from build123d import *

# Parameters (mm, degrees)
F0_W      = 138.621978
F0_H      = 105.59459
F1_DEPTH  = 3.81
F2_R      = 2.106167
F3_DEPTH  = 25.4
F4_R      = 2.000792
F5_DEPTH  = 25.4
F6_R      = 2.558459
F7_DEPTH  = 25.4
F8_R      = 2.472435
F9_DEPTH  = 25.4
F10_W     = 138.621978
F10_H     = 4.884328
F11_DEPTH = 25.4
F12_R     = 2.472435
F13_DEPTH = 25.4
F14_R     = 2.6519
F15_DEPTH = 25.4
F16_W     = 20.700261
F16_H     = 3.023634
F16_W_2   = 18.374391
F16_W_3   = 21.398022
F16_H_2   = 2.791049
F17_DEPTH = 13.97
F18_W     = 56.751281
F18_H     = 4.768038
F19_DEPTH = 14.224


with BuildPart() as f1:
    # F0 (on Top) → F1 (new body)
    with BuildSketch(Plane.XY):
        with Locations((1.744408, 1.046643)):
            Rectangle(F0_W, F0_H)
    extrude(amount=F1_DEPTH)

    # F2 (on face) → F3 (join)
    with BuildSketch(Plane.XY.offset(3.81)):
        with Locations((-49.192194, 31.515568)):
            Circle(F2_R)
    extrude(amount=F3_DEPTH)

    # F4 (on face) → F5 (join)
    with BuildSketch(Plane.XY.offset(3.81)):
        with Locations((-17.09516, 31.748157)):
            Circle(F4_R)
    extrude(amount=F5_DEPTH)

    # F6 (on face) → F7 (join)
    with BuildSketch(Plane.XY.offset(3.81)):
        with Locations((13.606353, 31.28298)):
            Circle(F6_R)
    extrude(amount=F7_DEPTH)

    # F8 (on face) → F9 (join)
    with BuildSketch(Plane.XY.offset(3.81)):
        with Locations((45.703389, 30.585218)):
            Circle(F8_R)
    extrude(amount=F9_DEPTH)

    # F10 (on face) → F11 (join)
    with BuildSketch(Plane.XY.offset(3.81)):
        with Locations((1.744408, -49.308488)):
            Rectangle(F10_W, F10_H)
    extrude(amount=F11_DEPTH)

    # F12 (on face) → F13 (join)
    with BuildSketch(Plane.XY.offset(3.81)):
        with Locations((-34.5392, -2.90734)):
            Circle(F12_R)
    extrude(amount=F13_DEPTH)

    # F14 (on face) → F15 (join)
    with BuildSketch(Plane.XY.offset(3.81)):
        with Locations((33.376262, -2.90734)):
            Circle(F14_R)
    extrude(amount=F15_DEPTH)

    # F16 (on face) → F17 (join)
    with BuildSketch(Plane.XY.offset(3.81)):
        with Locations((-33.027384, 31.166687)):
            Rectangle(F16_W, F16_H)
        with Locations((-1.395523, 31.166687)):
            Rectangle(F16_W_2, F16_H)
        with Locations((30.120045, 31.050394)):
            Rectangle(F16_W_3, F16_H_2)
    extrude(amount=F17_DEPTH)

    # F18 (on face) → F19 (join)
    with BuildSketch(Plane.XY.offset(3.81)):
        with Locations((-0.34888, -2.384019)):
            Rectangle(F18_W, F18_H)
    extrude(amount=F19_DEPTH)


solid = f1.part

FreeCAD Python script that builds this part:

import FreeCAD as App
import Part
import Sketcher

V = App.Vector
Q = App.Units.Quantity

doc = App.newDocument("Part")
body = doc.addObject("PartDesign::Body", "Body")

# Sketch on XY plane
sketch1 = body.newObject("Sketcher::SketchObject", "Sketch")
sketch1.AttachmentSupport = (doc.getObject("XY_Plane"), [""])
sketch1.MapMode = "FlatFace"
sketch1.addGeometry(Part.LineSegment(V(-68, 54, 0), V(-68, -52, 0)), False)
sketch1.addGeometry(Part.LineSegment(V(-68, -52, 0), V(71, -52, 0)), False)
sketch1.addGeometry(Part.LineSegment(V(71, -52, 0), V(71, 54, 0)), False)
sketch1.addGeometry(Part.LineSegment(V(71, 54, 0), V(-68, 54, 0)), False)
sketch1.addConstraint(Sketcher.Constraint("Coincident", 0, 2, 1, 1))
sketch1.addConstraint(Sketcher.Constraint("Coincident", 1, 2, 2, 1))
sketch1.addConstraint(Sketcher.Constraint("Coincident", 2, 2, 3, 1))
sketch1.addConstraint(Sketcher.Constraint("Coincident", 3, 2, 0, 1))
sketch1.addConstraint(Sketcher.Constraint("Vertical", 0))
sketch1.addConstraint(Sketcher.Constraint("Horizontal", 1))
sketch1.addConstraint(Sketcher.Constraint("Vertical", 2))
sketch1.addConstraint(Sketcher.Constraint("Horizontal", 3))
sketch1.addConstraint(Sketcher.Constraint("DistanceX", 1, 1, 1, 2, Q("138.621978 mm")))
sketch1.addConstraint(Sketcher.Constraint("DistanceY", 0, 2, 0, 1, Q("105.59459 mm")))
sketch1.addConstraint(Sketcher.Constraint("DistanceX", 0, 2, -1, 1, Q("67.566581 mm")))
sketch1.addConstraint(Sketcher.Constraint("DistanceY", 0, 2, -1, 1, Q("51.750652 mm")))
pad1 = body.newObject("PartDesign::Pad", "Pad")
pad1.Profile = sketch1
pad1.Length = Q("0.15 in")

# Sketch on XY plane
sketch2 = body.newObject("Sketcher::SketchObject", "Sketch001")
sketch2.AttachmentSupport = (doc.getObject("XY_Plane"), [""])
sketch2.MapMode = "FlatFace"
sketch2.AttachmentOffset = App.Placement(V(0, 0, 0.15 * 25.4), App.Rotation())
sketch2.addGeometry(Part.Circle(V(-49.2, 31.5, 0), V(0, 0, 1), 2.1), False)
sketch2.addConstraint(Sketcher.Constraint("Diameter", 0, Q("4.212334 mm")))
sketch2.addConstraint(Sketcher.Constraint("DistanceX", 0, 3, -1, 1, Q("49.192194 mm")))
sketch2.addConstraint(Sketcher.Constraint("DistanceY", -1, 1, 0, 3, Q("31.515568 mm")))
pad2 = body.newObject("PartDesign::Pad", "Pad001")
pad2.Profile = sketch2
pad2.Length = Q("1 in")

# Sketch on XY plane
sketch3 = body.newObject("Sketcher::SketchObject", "Sketch002")
sketch3.AttachmentSupport = (doc.getObject("XY_Plane"), [""])
sketch3.MapMode = "FlatFace"
sketch3.AttachmentOffset = App.Placement(V(0, 0, 0.15 * 25.4), App.Rotation())
sketch3.addGeometry(Part.Circle(V(-17.1, 31.7, 0), V(0, 0, 1), 2), False)
sketch3.addConstraint(Sketcher.Constraint("Diameter", 0, Q("4.001584 mm")))
sketch3.addConstraint(Sketcher.Constraint("DistanceX", 0, 3, -1, 1, Q("17.09516 mm")))
sketch3.addConstraint(Sketcher.Constraint("DistanceY", -1, 1, 0, 3, Q("31.748157 mm")))
pad3 = body.newObject("PartDesign::Pad", "Pad002")
pad3.Profile = sketch3
pad3.Length = Q("1 in")

# Sketch on XY plane
sketch4 = body.newObject("Sketcher::SketchObject", "Sketch003")
sketch4.AttachmentSupport = (doc.getObject("XY_Plane"), [""])
sketch4.MapMode = "FlatFace"
sketch4.AttachmentOffset = App.Placement(V(0, 0, 0.15 * 25.4), App.Rotation())
sketch4.addGeometry(Part.Circle(V(13.6, 31.3, 0), V(0, 0, 1), 2.6), False)
sketch4.addConstraint(Sketcher.Constraint("Diameter", 0, Q("5.116918 mm")))
sketch4.addConstraint(Sketcher.Constraint("DistanceY", -1, 1, 0, 3, Q("31.28298 mm")))
sketch4.addConstraint(Sketcher.Constraint("DistanceX", -1, 1, 0, 3, Q("13.606353 mm")))
pad4 = body.newObject("PartDesign::Pad", "Pad003")
pad4.Profile = sketch4
pad4.Length = Q("1 in")

# Sketch on XY plane
sketch5 = body.newObject("Sketcher::SketchObject", "Sketch004")
sketch5.AttachmentSupport = (doc.getObject("XY_Plane"), [""])
sketch5.MapMode = "FlatFace"
sketch5.AttachmentOffset = App.Placement(V(0, 0, 0.15 * 25.4), App.Rotation())
sketch5.addGeometry(Part.Circle(V(45.7, 30.6, 0), V(0, 0, 1), 2.5), False)
sketch5.addConstraint(Sketcher.Constraint("Diameter", 0, Q("4.94487 mm")))
sketch5.addConstraint(Sketcher.Constraint("DistanceX", -1, 1, 0, 3, Q("45.703389 mm")))
sketch5.addConstraint(Sketcher.Constraint("DistanceY", -1, 1, 0, 3, Q("30.585218 mm")))
pad5 = body.newObject("PartDesign::Pad", "Pad004")
pad5.Profile = sketch5
pad5.Length = Q("1 in")

# Sketch on XY plane
sketch6 = body.newObject("Sketcher::SketchObject", "Sketch005")
sketch6.AttachmentSupport = (doc.getObject("XY_Plane"), [""])
sketch6.MapMode = "FlatFace"
sketch6.AttachmentOffset = App.Placement(V(0, 0, 0.15 * 25.4), App.Rotation())
sketch6.addGeometry(Part.LineSegment(V(-67.6, -46.9, 0), V(-67.6, -51.8, 0)), False)
sketch6.addGeometry(Part.LineSegment(V(-67.6, -51.8, 0), V(71.1, -51.8, 0)), False)
sketch6.addGeometry(Part.LineSegment(V(71.1, -51.8, 0), V(71.1, -46.9, 0)), False)
sketch6.addGeometry(Part.LineSegment(V(71.1, -46.9, 0), V(-67.6, -46.9, 0)), False)
sketch6.addConstraint(Sketcher.Constraint("Coincident", 0, 2, 1, 1))
sketch6.addConstraint(Sketcher.Constraint("Coincident", 1, 2, 2, 1))
sketch6.addConstraint(Sketcher.Constraint("Coincident", 2, 2, 3, 1))
sketch6.addConstraint(Sketcher.Constraint("Coincident", 3, 2, 0, 1))
sketch6.addConstraint(Sketcher.Constraint("Vertical", 0))
sketch6.addConstraint(Sketcher.Constraint("Horizontal", 1))
sketch6.addConstraint(Sketcher.Constraint("Vertical", 2))
sketch6.addConstraint(Sketcher.Constraint("Horizontal", 3))
sketch6.addConstraint(Sketcher.Constraint("DistanceX", 1, 1, 1, 2, Q("138.621978 mm")))
sketch6.addConstraint(Sketcher.Constraint("DistanceY", 0, 2, 0, 1, Q("4.884328 mm")))
sketch6.addConstraint(Sketcher.Constraint("DistanceX", 0, 2, -1, 1, Q("67.566581 mm")))
sketch6.addConstraint(Sketcher.Constraint("DistanceY", 0, 2, -1, 1, Q("51.750652 mm")))
pad6 = body.newObject("PartDesign::Pad", "Pad005")
pad6.Profile = sketch6
pad6.Length = Q("1 in")

# Sketch on XY plane
sketch7 = body.newObject("Sketcher::SketchObject", "Sketch006")
sketch7.AttachmentSupport = (doc.getObject("XY_Plane"), [""])
sketch7.MapMode = "FlatFace"
sketch7.AttachmentOffset = App.Placement(V(0, 0, 0.15 * 25.4), App.Rotation())
sketch7.addGeometry(Part.Circle(V(-34.5, -2.9, 0), V(0, 0, 1), 2.5), False)
sketch7.addConstraint(Sketcher.Constraint("Diameter", 0, Q("4.94487 mm")))
sketch7.addConstraint(Sketcher.Constraint("DistanceX", 0, 3, -1, 1, Q("34.5392 mm")))
sketch7.addConstraint(Sketcher.Constraint("DistanceY", 0, 3, -1, 1, Q("2.90734 mm")))
pad7 = body.newObject("PartDesign::Pad", "Pad006")
pad7.Profile = sketch7
pad7.Length = Q("1 in")

# Sketch on XY plane
sketch8 = body.newObject("Sketcher::SketchObject", "Sketch007")
sketch8.AttachmentSupport = (doc.getObject("XY_Plane"), [""])
sketch8.MapMode = "FlatFace"
sketch8.AttachmentOffset = App.Placement(V(0, 0, 0.15 * 25.4), App.Rotation())
sketch8.addGeometry(Part.Circle(V(33.4, -2.9, 0), V(0, 0, 1), 2.7), False)
sketch8.addConstraint(Sketcher.Constraint("Diameter", 0, Q("5.3038 mm")))
sketch8.addConstraint(Sketcher.Constraint("DistanceX", -1, 1, 0, 3, Q("33.376262 mm")))
sketch8.addConstraint(Sketcher.Constraint("DistanceY", 0, 3, -1, 1, Q("2.90734 mm")))
pad8 = body.newObject("PartDesign::Pad", "Pad007")
pad8.Profile = sketch8
pad8.Length = Q("1 in")

# Sketch on XY plane
sketch9 = body.newObject("Sketcher::SketchObject", "Sketch008")
sketch9.AttachmentSupport = (doc.getObject("XY_Plane"), [""])
sketch9.MapMode = "FlatFace"
sketch9.AttachmentOffset = App.Placement(V(0, 0, 0.15 * 25.4), App.Rotation())
sketch9.addGeometry(Part.LineSegment(V(-43.4, 32.7, 0), V(-43.4, 29.7, 0)), False)
sketch9.addGeometry(Part.LineSegment(V(-43.4, 29.7, 0), V(-22.7, 29.7, 0)), False)
sketch9.addGeometry(Part.LineSegment(V(-22.7, 29.7, 0), V(-22.7, 32.7, 0)), False)
sketch9.addGeometry(Part.LineSegment(V(-22.7, 32.7, 0), V(-43.4, 32.7, 0)), False)
sketch9.addGeometry(Part.LineSegment(V(-10.6, 32.7, 0), V(-10.6, 29.7, 0)), False)
sketch9.addGeometry(Part.LineSegment(V(-10.6, 29.7, 0), V(7.8, 29.7, 0)), False)
sketch9.addGeometry(Part.LineSegment(V(7.8, 29.7, 0), V(7.8, 32.7, 0)), False)
sketch9.addGeometry(Part.LineSegment(V(7.8, 32.7, 0), V(-10.6, 32.7, 0)), False)
sketch9.addGeometry(Part.LineSegment(V(19.4, 32.4, 0), V(19.4, 29.7, 0)), False)
sketch9.addGeometry(Part.LineSegment(V(19.4, 29.7, 0), V(40.8, 29.7, 0)), False)
sketch9.addGeometry(Part.LineSegment(V(40.8, 29.7, 0), V(40.8, 32.4, 0)), False)
sketch9.addGeometry(Part.LineSegment(V(40.8, 32.4, 0), V(19.4, 32.4, 0)), False)
sketch9.addConstraint(Sketcher.Constraint("Coincident", 0, 2, 1, 1))
sketch9.addConstraint(Sketcher.Constraint("Coincident", 1, 2, 2, 1))
sketch9.addConstraint(Sketcher.Constraint("Coincident", 2, 2, 3, 1))
sketch9.addConstraint(Sketcher.Constraint("Coincident", 3, 2, 0, 1))
sketch9.addConstraint(Sketcher.Constraint("Coincident", 4, 2, 5, 1))
sketch9.addConstraint(Sketcher.Constraint("Coincident", 5, 2, 6, 1))
sketch9.addConstraint(Sketcher.Constraint("Coincident", 6, 2, 7, 1))
sketch9.addConstraint(Sketcher.Constraint("Coincident", 7, 2, 4, 1))
sketch9.addConstraint(Sketcher.Constraint("Coincident", 8, 2, 9, 1))
sketch9.addConstraint(Sketcher.Constraint("Coincident", 9, 2, 10, 1))
sketch9.addConstraint(Sketcher.Constraint("Coincident", 10, 2, 11, 1))
sketch9.addConstraint(Sketcher.Constraint("Coincident", 11, 2, 8, 1))
sketch9.addConstraint(Sketcher.Constraint("Vertical", 0))
sketch9.addConstraint(Sketcher.Constraint("Horizontal", 1))
sketch9.addConstraint(Sketcher.Constraint("Vertical", 2))
sketch9.addConstraint(Sketcher.Constraint("Horizontal", 3))
sketch9.addConstraint(Sketcher.Constraint("Vertical", 4))
sketch9.addConstraint(Sketcher.Constraint("Horizontal", 5))
sketch9.addConstraint(Sketcher.Constraint("Vertical", 6))
sketch9.addConstraint(Sketcher.Constraint("Horizontal", 7))
sketch9.addConstraint(Sketcher.Constraint("Vertical", 8))
sketch9.addConstraint(Sketcher.Constraint("Horizontal", 9))
sketch9.addConstraint(Sketcher.Constraint("Vertical", 10))
sketch9.addConstraint(Sketcher.Constraint("Horizontal", 11))
sketch9.addConstraint(Sketcher.Constraint("Horizontal", 1, 2, 4, 2))
sketch9.addConstraint(Sketcher.Constraint("Horizontal", 3, 2, 6, 2))
sketch9.addConstraint(Sketcher.Constraint("Horizontal", 5, 2, 8, 2))
sketch9.addConstraint(Sketcher.Constraint("DistanceX", 1, 1, 1, 2, Q("20.700261 mm")))
sketch9.addConstraint(Sketcher.Constraint("DistanceX", 5, 1, 5, 2, Q("18.374391 mm")))
sketch9.addConstraint(Sketcher.Constraint("DistanceY", 8, 2, 8, 1, Q("2.791049 mm")))
sketch9.addConstraint(Sketcher.Constraint("DistanceX", 9, 1, 9, 2, Q("21.398022 mm")))
sketch9.addConstraint(Sketcher.Constraint("DistanceY", 0, 2, 0, 1, Q("3.023634 mm")))
sketch9.addConstraint(Sketcher.Constraint("DistanceY", -1, 1, 0, 2, Q("29.65487 mm")))
sketch9.addConstraint(Sketcher.Constraint("DistanceX", 4, 2, -1, 1, Q("10.582719 mm")))
sketch9.addConstraint(Sketcher.Constraint("DistanceX", 5, 2, 8, 2, Q("11.629361 mm")))
sketch9.addConstraint(Sketcher.Constraint("DistanceX", 0, 2, -1, 1, Q("43.377514 mm")))
pad9 = body.newObject("PartDesign::Pad", "Pad008")
pad9.Profile = sketch9
pad9.Length = Q("0.55 in")

# Sketch on XY plane
sketch10 = body.newObject("Sketcher::SketchObject", "Sketch009")
sketch10.AttachmentSupport = (doc.getObject("XY_Plane"), [""])
sketch10.MapMode = "FlatFace"
sketch10.AttachmentOffset = App.Placement(V(0, 0, 0.15 * 25.4), App.Rotation())
sketch10.addGeometry(Part.LineSegment(V(-28.7, 0, 0), V(-28.7, -4.8, 0)), False)
sketch10.addGeometry(Part.LineSegment(V(-28.7, -4.8, 0), V(28, -4.8, 0)), False)
sketch10.addGeometry(Part.LineSegment(V(28, -4.8, 0), V(28, 0, 0)), False)
sketch10.addGeometry(Part.LineSegment(V(28, 0, 0), V(-28.7, 0, 0)), False)
sketch10.addConstraint(Sketcher.Constraint("Coincident", 0, 2, 1, 1))
sketch10.addConstraint(Sketcher.Constraint("Coincident", 1, 2, 2, 1))
sketch10.addConstraint(Sketcher.Constraint("Coincident", 2, 2, 3, 1))
sketch10.addConstraint(Sketcher.Constraint("Coincident", 3, 2, 0, 1))
sketch10.addConstraint(Sketcher.Constraint("Vertical", 0))
sketch10.addConstraint(Sketcher.Constraint("Horizontal", 1))
sketch10.addConstraint(Sketcher.Constraint("Vertical", 2))
sketch10.addConstraint(Sketcher.Constraint("Horizontal", 3))
sketch10.addConstraint(Sketcher.Constraint("PointOnObject", 2, 2, -1))
sketch10.addConstraint(Sketcher.Constraint("DistanceX", 1, 1, 1, 2, Q("56.751281 mm")))
sketch10.addConstraint(Sketcher.Constraint("DistanceY", 0, 2, 0, 1, Q("4.768038 mm")))
sketch10.addConstraint(Sketcher.Constraint("DistanceX", 0, 2, -1, 1, Q("28.724521 mm")))
pad10 = body.newObject("PartDesign::Pad", "Pad009")
pad10.Profile = sketch10
pad10.Length = Q("0.56 in")

doc.recompute()
